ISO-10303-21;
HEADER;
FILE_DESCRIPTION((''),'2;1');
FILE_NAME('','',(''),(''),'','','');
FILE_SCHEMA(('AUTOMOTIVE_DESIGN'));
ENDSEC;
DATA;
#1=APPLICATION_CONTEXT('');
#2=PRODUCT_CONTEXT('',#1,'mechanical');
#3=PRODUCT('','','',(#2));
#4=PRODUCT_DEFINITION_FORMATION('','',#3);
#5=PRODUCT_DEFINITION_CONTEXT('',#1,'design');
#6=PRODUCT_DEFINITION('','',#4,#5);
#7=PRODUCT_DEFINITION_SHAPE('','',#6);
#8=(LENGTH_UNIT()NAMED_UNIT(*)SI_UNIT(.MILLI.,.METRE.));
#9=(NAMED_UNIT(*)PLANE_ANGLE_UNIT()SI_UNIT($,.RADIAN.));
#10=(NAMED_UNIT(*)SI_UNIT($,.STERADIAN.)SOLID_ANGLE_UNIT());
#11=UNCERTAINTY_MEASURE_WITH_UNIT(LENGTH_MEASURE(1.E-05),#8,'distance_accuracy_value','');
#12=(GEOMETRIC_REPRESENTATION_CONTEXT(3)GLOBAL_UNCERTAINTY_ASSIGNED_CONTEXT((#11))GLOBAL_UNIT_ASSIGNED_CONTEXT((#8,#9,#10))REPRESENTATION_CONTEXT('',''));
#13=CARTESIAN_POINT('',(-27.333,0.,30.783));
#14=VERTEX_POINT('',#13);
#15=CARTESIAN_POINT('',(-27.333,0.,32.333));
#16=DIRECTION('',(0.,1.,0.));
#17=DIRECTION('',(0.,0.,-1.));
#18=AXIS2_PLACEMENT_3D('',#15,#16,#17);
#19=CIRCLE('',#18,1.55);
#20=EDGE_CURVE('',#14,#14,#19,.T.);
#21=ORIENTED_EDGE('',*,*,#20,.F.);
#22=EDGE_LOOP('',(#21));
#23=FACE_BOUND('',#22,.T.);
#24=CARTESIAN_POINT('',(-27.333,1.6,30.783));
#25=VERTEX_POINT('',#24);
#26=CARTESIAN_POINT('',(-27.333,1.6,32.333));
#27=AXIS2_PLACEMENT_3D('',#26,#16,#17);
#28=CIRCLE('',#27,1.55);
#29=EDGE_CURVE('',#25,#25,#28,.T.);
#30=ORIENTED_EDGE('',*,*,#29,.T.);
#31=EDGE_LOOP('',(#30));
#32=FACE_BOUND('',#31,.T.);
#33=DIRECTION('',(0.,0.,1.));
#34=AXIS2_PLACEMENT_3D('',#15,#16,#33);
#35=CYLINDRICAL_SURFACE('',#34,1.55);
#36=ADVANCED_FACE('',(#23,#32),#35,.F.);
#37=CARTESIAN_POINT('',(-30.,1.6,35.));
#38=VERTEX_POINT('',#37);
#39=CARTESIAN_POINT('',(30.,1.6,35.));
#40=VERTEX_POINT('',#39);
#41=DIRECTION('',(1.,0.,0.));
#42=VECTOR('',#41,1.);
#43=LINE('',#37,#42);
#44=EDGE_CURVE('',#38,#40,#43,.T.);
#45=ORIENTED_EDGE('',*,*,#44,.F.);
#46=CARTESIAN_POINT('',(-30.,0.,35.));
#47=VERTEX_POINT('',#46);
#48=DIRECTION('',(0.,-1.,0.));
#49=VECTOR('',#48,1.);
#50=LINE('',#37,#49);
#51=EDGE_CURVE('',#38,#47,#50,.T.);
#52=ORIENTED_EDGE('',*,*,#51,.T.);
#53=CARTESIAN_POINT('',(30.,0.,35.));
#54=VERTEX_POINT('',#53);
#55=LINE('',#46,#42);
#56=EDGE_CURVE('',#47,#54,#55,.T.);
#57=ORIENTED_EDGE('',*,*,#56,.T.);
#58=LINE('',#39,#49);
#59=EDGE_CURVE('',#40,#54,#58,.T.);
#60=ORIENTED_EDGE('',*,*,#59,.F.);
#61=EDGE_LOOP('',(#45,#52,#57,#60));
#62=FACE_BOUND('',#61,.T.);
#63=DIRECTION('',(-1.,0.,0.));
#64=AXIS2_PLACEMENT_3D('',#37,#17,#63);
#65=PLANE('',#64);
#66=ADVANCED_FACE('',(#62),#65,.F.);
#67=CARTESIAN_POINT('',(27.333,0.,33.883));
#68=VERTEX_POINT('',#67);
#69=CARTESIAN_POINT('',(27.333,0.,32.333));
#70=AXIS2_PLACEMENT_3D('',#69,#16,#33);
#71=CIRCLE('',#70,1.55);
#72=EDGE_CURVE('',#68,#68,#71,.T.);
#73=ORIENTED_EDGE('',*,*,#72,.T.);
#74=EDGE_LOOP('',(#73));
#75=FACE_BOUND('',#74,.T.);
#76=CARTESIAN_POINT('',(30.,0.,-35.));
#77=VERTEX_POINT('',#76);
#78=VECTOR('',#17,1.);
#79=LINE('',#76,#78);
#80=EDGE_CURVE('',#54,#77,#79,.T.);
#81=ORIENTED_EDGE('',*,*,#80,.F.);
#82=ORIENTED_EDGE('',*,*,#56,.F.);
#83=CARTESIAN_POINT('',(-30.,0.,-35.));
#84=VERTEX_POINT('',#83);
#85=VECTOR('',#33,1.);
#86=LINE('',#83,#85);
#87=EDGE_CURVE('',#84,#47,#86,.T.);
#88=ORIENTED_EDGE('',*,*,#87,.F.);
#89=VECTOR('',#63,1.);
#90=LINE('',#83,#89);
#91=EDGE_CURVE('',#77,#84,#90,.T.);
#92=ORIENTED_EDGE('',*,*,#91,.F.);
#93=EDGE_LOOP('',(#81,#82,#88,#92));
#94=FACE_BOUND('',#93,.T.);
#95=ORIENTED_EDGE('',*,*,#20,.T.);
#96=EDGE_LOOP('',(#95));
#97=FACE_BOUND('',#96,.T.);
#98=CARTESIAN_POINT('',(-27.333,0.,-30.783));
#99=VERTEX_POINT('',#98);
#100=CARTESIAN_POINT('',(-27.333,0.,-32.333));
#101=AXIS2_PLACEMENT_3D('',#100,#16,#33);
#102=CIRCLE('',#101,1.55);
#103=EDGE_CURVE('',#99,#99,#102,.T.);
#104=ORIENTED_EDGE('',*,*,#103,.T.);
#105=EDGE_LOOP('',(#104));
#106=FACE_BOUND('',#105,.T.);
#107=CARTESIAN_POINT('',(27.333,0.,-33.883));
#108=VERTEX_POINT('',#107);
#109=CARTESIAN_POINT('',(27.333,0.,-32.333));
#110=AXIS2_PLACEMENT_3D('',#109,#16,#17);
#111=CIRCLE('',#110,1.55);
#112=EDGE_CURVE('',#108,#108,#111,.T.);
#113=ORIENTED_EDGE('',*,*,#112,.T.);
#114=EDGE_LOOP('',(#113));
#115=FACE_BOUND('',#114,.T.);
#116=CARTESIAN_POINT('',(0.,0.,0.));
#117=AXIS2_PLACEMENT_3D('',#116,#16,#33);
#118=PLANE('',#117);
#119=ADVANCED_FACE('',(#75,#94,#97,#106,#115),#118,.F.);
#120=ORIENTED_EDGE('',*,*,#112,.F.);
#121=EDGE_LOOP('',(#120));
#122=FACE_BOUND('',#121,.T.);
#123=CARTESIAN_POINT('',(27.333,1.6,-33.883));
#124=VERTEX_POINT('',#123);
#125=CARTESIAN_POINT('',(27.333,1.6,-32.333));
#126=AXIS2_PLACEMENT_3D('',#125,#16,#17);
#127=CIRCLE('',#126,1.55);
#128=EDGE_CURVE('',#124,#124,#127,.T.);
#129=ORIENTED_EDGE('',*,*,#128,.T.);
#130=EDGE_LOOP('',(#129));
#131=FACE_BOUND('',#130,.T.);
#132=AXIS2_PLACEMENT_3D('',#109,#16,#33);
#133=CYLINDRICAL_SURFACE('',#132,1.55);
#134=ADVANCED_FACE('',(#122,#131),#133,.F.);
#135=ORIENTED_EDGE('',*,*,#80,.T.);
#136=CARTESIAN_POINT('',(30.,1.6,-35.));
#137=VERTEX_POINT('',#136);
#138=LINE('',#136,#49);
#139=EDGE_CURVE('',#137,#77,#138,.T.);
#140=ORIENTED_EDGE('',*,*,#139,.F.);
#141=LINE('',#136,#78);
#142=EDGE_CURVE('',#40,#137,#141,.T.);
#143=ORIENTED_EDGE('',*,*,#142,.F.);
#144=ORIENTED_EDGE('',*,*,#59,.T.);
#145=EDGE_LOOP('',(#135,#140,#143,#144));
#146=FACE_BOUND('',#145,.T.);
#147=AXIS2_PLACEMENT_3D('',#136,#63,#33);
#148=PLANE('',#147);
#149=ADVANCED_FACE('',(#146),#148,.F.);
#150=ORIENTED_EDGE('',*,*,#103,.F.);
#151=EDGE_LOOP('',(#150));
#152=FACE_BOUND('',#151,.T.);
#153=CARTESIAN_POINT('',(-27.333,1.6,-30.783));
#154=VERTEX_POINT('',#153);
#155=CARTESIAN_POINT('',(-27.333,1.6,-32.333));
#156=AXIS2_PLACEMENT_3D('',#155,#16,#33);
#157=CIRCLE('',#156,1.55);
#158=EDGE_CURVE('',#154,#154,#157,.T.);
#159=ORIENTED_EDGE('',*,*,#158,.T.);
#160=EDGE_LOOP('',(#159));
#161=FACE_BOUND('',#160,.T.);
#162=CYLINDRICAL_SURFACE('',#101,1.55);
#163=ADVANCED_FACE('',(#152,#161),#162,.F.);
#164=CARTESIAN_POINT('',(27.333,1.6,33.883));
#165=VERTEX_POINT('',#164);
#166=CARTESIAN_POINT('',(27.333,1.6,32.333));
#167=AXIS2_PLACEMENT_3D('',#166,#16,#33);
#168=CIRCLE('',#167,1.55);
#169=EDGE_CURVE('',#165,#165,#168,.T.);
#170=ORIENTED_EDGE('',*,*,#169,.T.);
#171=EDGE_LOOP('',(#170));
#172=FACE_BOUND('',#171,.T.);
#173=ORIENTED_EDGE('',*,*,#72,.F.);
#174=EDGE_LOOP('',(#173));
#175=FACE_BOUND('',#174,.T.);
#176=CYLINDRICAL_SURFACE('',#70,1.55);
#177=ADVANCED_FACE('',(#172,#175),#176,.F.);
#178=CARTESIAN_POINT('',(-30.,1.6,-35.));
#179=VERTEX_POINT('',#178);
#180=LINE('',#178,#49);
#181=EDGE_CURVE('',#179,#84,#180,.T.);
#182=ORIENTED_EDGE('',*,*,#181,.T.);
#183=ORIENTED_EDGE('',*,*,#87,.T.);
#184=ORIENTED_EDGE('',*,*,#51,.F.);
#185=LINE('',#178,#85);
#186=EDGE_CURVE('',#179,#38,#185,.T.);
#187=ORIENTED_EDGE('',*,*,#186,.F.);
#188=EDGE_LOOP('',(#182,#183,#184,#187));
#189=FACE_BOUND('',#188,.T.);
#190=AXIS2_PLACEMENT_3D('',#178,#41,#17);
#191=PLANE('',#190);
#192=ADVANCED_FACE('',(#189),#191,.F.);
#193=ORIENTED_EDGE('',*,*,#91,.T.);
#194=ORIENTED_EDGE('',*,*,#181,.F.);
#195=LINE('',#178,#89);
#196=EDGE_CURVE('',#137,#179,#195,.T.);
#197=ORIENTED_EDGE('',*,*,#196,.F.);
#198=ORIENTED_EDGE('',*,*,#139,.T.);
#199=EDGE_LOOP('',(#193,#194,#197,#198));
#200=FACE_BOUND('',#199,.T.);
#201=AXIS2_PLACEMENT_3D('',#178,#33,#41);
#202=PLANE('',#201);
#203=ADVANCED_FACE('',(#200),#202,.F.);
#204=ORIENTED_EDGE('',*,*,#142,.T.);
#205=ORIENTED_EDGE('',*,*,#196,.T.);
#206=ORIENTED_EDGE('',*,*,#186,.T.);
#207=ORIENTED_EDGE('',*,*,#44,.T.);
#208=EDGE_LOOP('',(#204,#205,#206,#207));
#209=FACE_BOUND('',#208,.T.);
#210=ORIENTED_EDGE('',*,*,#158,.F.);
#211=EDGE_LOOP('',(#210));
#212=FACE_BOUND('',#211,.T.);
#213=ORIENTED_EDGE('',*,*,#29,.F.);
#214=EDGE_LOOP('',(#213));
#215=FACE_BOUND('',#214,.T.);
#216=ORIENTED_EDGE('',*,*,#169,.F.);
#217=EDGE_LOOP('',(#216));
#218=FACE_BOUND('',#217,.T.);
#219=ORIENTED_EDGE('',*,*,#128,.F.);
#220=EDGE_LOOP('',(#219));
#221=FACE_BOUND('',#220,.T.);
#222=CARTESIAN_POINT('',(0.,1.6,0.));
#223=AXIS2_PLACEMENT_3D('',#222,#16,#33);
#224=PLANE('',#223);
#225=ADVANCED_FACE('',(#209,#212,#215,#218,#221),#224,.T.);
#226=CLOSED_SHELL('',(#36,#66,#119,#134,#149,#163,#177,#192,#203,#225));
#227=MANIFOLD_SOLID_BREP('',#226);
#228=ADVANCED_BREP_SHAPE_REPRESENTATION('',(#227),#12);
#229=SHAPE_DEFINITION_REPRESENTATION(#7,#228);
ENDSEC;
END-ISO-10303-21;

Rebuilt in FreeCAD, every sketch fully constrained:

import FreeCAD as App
import Part
import Sketcher
from FreeCAD import Vector
Q = App.Units.Quantity

doc = App.newDocument("Part")
body = doc.addObject("PartDesign::Body", "Body")

# Sketch on XZ plane
sketch1 = doc.addObject("Sketcher::SketchObject", "Sketch")
body.addObject(sketch1)
sketch1.AttachmentSupport = (doc.XZ_Plane, [""])
sketch1.MapMode = "FlatFace"
sketch1.addGeometry([
    Part.LineSegment(Vector(-30, -35, 0), Vector(-30, 35, 0)),
    Part.LineSegment(Vector(-30, 35, 0), Vector(30, 35, 0)),
    Part.LineSegment(Vector(30, 35, 0), Vector(30, -35, 0)),
    Part.LineSegment(Vector(30, -35, 0), Vector(-30, -35, 0)),
], False)
sketch1.addConstraint([
    Sketcher.Constraint("Coincident", 0, 2, 1, 1),
    Sketcher.Constraint("Coincident", 1, 2, 2, 1),
    Sketcher.Constraint("Coincident", 2, 2, 3, 1),
    Sketcher.Constraint("Coincident", 3, 2, 0, 1),
    Sketcher.Constraint("Vertical", 0),
    Sketcher.Constraint("Horizontal", 1),
    Sketcher.Constraint("Vertical", 2),
    Sketcher.Constraint("Horizontal", 3),
    Sketcher.Constraint("Symmetric", 0, 2, 2, 2, -1, 1),
    Sketcher.Constraint("DistanceX", 1, 1, 1, 2, Q("60 mm")),
    Sketcher.Constraint("DistanceY", 0, 1, 0, 2, Q("70 mm")),
])
pad1 = doc.addObject("PartDesign::Pad", "Pad")
body.addObject(pad1)
pad1.Profile = sketch1
pad1.Length = 1.6
pad1.Reversed = True

# Sketch on XZ plane
sketch2 = doc.addObject("Sketcher::SketchObject", "Sketch001")
body.addObject(sketch2)
sketch2.AttachmentSupport = (doc.XZ_Plane, [""])
sketch2.MapMode = "FlatFace"
sketch2.AttachmentOffset = App.Placement(Vector(0, 0, -1.6), App.Rotation())
sketch2.addGeometry([
    Part.Circle(Vector(-27.3, -32.3, 0), Vector(0, 0, 1), 1.6),
    Part.Circle(Vector(27.3, -32.3, 0), Vector(0, 0, 1), 1.6),
    Part.Circle(Vector(27.3, 32.3, 0), Vector(0, 0, 1), 1.6),
    Part.Circle(Vector(-27.3, 32.3, 0), Vector(0, 0, 1), 1.6),
], False)
sketch2.addConstraint([
    Sketcher.Constraint("Equal", 0, 1),
    Sketcher.Constraint("Equal", 1, 2),
    Sketcher.Constraint("Equal", 2, 3),
    Sketcher.Constraint("Symmetric", 0, 3, 2, 3, -1, 1),
    Sketcher.Constraint("Symmetric", 1, 3, 3, 3, -1, 1),
    Sketcher.Constraint("Symmetric", 0, 3, 1, 3, -2),
    Sketcher.Constraint("Diameter", 0, Q("3.1 mm")),
    Sketcher.Constraint("DistanceX", 0, 3, -1, 1, Q("27.333 mm")),
    Sketcher.Constraint("DistanceY", 0, 3, -1, 1, Q("32.333 mm")),
])
pocket1 = doc.addObject("PartDesign::Pocket", "Pocket")
body.addObject(pocket1)
pocket1.Profile = sketch2
pocket1.Type = "ThroughAll"
pocket1.Reversed = True

doc.recompute()
